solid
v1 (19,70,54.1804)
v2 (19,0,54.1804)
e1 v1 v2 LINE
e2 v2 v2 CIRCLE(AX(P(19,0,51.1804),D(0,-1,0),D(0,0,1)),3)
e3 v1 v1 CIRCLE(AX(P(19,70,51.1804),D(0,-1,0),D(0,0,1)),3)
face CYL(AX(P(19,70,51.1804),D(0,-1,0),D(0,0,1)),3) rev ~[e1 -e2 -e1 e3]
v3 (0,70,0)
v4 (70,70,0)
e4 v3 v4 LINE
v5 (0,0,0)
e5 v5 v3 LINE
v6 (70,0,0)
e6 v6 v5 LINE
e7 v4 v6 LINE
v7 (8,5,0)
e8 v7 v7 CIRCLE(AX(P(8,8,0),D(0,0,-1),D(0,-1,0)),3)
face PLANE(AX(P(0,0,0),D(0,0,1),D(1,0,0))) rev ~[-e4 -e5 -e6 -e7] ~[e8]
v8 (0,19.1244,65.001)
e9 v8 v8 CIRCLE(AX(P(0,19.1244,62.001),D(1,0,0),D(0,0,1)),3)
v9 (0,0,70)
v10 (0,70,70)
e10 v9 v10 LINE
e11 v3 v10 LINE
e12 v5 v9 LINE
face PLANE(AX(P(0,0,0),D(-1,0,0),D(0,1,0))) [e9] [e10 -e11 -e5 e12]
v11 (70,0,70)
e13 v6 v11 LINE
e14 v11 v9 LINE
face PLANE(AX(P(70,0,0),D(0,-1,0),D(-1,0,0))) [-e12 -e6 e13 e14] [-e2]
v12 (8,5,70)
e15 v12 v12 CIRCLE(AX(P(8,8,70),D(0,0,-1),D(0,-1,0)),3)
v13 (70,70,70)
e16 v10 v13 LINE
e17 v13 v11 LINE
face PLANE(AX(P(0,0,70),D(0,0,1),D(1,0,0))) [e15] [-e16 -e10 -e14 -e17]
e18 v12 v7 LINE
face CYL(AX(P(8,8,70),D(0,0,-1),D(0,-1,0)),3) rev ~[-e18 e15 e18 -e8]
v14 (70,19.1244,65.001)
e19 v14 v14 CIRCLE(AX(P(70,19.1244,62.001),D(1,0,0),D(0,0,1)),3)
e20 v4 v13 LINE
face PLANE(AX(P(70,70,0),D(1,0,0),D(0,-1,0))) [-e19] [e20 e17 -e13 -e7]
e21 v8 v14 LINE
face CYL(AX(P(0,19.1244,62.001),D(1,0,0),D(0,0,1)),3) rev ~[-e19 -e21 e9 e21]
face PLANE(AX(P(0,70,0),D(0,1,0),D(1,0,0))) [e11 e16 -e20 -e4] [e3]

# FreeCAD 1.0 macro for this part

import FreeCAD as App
import Part
import Sketcher
from FreeCAD import Vector


def add_polygon(sketch, points):
    """Adds a closed chain of lines whose ends are joined by coincident constraints."""
    first, n = sketch.GeometryCount, len(points)
    for a, b in zip(points, points[1:] + points[:1]):
        sketch.addGeometry(Part.LineSegment(App.Vector(*a, 0), App.Vector(*b, 0)), False)
    for i in range(n):
        sketch.addConstraint(Sketcher.Constraint("Coincident", first + i, 2, first + (i + 1) % n, 1))

doc = App.newDocument("Part")
body = doc.addObject("PartDesign::Body", "Body")

# Sketch on XY plane
sketch1 = doc.addObject("Sketcher::SketchObject", "Sketch")
body.addObject(sketch1)
sketch1.AttachmentSupport = (doc.XY_Plane, [""])
sketch1.MapMode = "FlatFace"
add_polygon(sketch1, [(0, 70), (0, 0), (70, 0), (70, 70)])  # lines 0-3
sketch1.addConstraint(Sketcher.Constraint("Vertical", 0))
sketch1.addConstraint(Sketcher.Constraint("Horizontal", 1))
sketch1.addConstraint(Sketcher.Constraint("Vertical", 2))
sketch1.addConstraint(Sketcher.Constraint("Horizontal", 3))
sketch1.addConstraint(Sketcher.Constraint("Coincident", 0, 2, -1, 1))
sketch1.addConstraint(Sketcher.Constraint("Equal", 3, 0))
sketch1.addConstraint(Sketcher.Constraint("DistanceX", 1, 1, 1, 2, 70.0))
pad1 = doc.addObject("PartDesign::Pad", "Pad")
body.addObject(pad1)
pad1.Profile = sketch1
pad1.Length = 70

# Sketch on XY plane
sketch2 = doc.addObject("Sketcher::SketchObject", "Sketch001")
body.addObject(sketch2)
sketch2.AttachmentSupport = (doc.XY_Plane, [""])
sketch2.MapMode = "FlatFace"
sketch2.AttachmentOffset = App.Placement(Vector(0, 0, 70), App.Rotation())
sketch2.addGeometry(Part.Circle(Vector(8, 8, 0), Vector(0, 0, 1), 3), False)
sketch2.addConstraint(Sketcher.Constraint("Diameter", 0, 6.0))
sketch2.addConstraint(Sketcher.Constraint("DistanceX", -1, 1, 0, 3, 8.0))
sketch2.addConstraint(Sketcher.Constraint("DistanceY", -1, 1, 0, 3, 8.0))
doc.recompute()
hole = doc.addObject("PartDesign::Hole", "Hole")
body.addObject(hole)
hole.Profile = sketch2
hole.ThreadType = "None"
hole.Diameter = 6
hole.DepthType = "ThroughAll"

# Sketch on YZ plane
sketch3 = doc.addObject("Sketcher::SketchObject", "Sketch002")
body.addObject(sketch3)
sketch3.AttachmentSupport = (doc.YZ_Plane, [""])
sketch3.MapMode = "FlatFace"
sketch3.addGeometry(Part.Circle(Vector(19.1, 62, 0), Vector(0, 0, 1), 3), False)
sketch3.addConstraint(Sketcher.Constraint("Diameter", 0, 6.0))
sketch3.addConstraint(Sketcher.Constraint("DistanceY", -1, 1, 0, 3, 62.001))
sketch3.addConstraint(Sketcher.Constraint("DistanceX", -1, 1, 0, 3, 19.1244))
doc.recompute()
hole2 = doc.addObject("PartDesign::Hole", "Hole001")
body.addObject(hole2)
hole2.Profile = sketch3
hole2.ThreadType = "None"
hole2.Diameter = 6
hole2.DepthType = "ThroughAll"
hole2.Reversed = True

# Sketch on XZ plane
sketch4 = doc.addObject("Sketcher::SketchObject", "Sketch003")
body.addObject(sketch4)
sketch4.AttachmentSupport = (doc.XZ_Plane, [""])
sketch4.MapMode = "FlatFace"
sketch4.AttachmentOffset = App.Placement(Vector(0, 0, -70), App.Rotation())
sketch4.addGeometry(Part.Circle(Vector(19, 51.2, 0), Vector(0, 0, 1), 3), False)
sketch4.addConstraint(Sketcher.Constraint("Diameter", 0, 6.0))
sketch4.addConstraint(Sketcher.Constraint("DistanceX", -1, 1, 0, 3, 19.0))
sketch4.addConstraint(Sketcher.Constraint("DistanceY", -1, 1, 0, 3, 51.1804))
doc.recompute()
hole3 = doc.addObject("PartDesign::Hole", "Hole002")
body.addObject(hole3)
hole3.Profile = sketch4
hole3.ThreadType = "None"
hole3.Diameter = 6
hole3.DepthType = "ThroughAll"
hole3.Reversed = True

doc.recompute()
